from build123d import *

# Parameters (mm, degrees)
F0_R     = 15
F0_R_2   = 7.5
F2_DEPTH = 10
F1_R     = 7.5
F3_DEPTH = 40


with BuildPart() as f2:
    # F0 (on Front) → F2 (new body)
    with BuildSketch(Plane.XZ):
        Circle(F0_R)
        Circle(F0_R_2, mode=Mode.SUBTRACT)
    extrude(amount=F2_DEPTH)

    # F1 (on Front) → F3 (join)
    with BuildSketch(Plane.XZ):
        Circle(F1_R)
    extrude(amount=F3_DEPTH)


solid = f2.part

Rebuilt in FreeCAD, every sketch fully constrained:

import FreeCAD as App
import Part
import Sketcher

V = App.Vector

doc = App.newDocument("Part")
params = doc.addObject("Spreadsheet::Sheet", "Params")
for row, (alias, value) in enumerate([
    ("sketch1_diameter", "30 mm"),
    ("sketch1_diameter2", "15 mm"),
    ("pad1_length", "10 mm"),
    ("sketch2_diameter", "15 mm"),
    ("pad2_length", "40 mm"),
], start=1):
    params.set(f"A{row}", alias)
    params.set(f"B{row}", "=" + value)
    params.setAlias(f"B{row}", alias)

body = doc.addObject("PartDesign::Body", "Body")

# Sketch on XZ plane
sketch1 = doc.addObject("Sketcher::SketchObject", "Sketch")
body.addObject(sketch1)
sketch1.AttachmentSupport = (doc.XZ_Plane, [""])
sketch1.MapMode = "FlatFace"
sketch1.addGeometry(Part.Circle(V(0, 0, 0), V(0, 0, 1), 15), False)
sketch1.addGeometry(Part.Circle(V(0, 0, 0), V(0, 0, 1), 7.5), False)
sketch1.addConstraint(Sketcher.Constraint("Coincident", 0, 3, -1, 1))
sketch1.addConstraint(Sketcher.Constraint("Coincident", 1, 3, -1, 1))
sketch1.addConstraint(Sketcher.Constraint("Diameter", 0, 30.0))
sketch1.addConstraint(Sketcher.Constraint("Diameter", 1, 15.0))
sketch1.setExpression("Constraints[2]", "Params.sketch1_diameter")
sketch1.setExpression("Constraints[3]", "Params.sketch1_diameter2")
pad1 = doc.addObject("PartDesign::Pad", "Pad")
body.addObject(pad1)
pad1.Profile = sketch1
pad1.setExpression("Length", "Params.pad1_length")

# Sketch on XZ plane
sketch2 = doc.addObject("Sketcher::SketchObject", "Sketch001")
body.addObject(sketch2)
sketch2.AttachmentSupport = (doc.XZ_Plane, [""])
sketch2.MapMode = "FlatFace"
sketch2.addGeometry(Part.Circle(V(0, 0, 0), V(0, 0, 1), 7.5), False)
sketch2.addConstraint(Sketcher.Constraint("Coincident", 0, 3, -1, 1))
sketch2.addConstraint(Sketcher.Constraint("Diameter", 0, 15.0))
sketch2.setExpression("Constraints[1]", "Params.sketch2_diameter")
pad2 = doc.addObject("PartDesign::Pad", "Pad001")
body.addObject(pad2)
pad2.Profile = sketch2
pad2.setExpression("Length", "Params.pad2_length")

doc.recompute()
